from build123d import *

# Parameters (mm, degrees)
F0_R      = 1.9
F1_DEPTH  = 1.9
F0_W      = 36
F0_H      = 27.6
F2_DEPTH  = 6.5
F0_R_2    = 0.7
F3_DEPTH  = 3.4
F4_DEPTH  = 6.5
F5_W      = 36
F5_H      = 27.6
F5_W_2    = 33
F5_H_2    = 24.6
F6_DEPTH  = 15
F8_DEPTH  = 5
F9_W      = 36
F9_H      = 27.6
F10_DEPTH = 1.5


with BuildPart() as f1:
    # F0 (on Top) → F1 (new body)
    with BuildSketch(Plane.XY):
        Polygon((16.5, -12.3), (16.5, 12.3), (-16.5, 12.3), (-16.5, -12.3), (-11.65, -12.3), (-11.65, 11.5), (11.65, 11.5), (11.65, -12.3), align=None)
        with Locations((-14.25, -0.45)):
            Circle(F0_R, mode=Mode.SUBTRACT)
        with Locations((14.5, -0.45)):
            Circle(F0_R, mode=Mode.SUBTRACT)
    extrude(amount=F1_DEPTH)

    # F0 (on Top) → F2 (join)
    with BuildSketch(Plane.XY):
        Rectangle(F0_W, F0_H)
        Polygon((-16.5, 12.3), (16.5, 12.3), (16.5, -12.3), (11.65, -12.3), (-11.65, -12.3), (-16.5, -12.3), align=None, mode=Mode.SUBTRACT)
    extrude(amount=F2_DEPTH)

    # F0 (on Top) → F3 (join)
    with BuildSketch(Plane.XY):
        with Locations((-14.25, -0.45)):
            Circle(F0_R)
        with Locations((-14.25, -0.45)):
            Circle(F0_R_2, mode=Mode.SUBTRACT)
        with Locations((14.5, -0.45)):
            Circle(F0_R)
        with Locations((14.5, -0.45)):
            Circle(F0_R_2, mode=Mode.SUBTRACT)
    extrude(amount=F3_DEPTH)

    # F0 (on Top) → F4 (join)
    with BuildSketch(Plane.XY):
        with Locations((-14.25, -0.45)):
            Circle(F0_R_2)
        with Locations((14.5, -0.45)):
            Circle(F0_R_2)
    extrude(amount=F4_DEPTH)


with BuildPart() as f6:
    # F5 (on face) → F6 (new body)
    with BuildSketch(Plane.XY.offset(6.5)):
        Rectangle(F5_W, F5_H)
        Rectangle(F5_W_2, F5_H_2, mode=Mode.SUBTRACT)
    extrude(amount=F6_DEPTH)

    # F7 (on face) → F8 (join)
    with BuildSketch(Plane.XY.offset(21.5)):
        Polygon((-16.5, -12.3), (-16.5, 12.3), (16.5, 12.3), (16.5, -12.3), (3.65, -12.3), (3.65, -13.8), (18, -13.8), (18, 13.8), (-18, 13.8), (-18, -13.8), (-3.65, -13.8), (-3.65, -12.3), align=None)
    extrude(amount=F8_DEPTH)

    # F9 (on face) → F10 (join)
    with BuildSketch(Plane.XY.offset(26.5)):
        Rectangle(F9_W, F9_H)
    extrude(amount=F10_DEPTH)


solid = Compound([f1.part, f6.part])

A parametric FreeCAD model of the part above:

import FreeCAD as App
import Part
import Sketcher

V = App.Vector


def add_polygon(sketch, points):
    """Adds a closed chain of lines whose ends are joined by coincident constraints."""
    first, n = sketch.GeometryCount, len(points)
    for a, b in zip(points, points[1:] + points[:1]):
        sketch.addGeometry(Part.LineSegment(App.Vector(*a, 0), App.Vector(*b, 0)), False)
    for i in range(n):
        sketch.addConstraint(Sketcher.Constraint("Coincident", first + i, 2, first + (i + 1) % n, 1))

doc = App.newDocument("Part")
body = doc.addObject("PartDesign::Body", "Body")

sketch1 = doc.addObject("Sketcher::SketchObject", "Sketch")
body.addObject(sketch1)
sketch1.AttachmentSupport = (doc.XY_Plane, [""])
sketch1.MapMode = "FlatFace"
add_polygon(sketch1, [(16.5, -12.3), (16.5, 12.3), (-16.5, 12.3), (-16.5, -12.3), (-11.7, -12.3), (-11.7, 11.5), (11.7, 11.5), (11.7, -12.3)])
sketch1.addGeometry(Part.Circle(V(-14.2, -0.5, 0), V(0, 0, 1), 1.9), False)
sketch1.addGeometry(Part.Circle(V(14.5, -0.5, 0), V(0, 0, 1), 1.9), False)
sketch1.addConstraint([
    Sketcher.Constraint("Vertical", 0),
    Sketcher.Constraint("Horizontal", 1),
    Sketcher.Constraint("Vertical", 2),
    Sketcher.Constraint("Horizontal", 3),
    Sketcher.Constraint("Vertical", 4),
    Sketcher.Constraint("Horizontal", 5),
    Sketcher.Constraint("Vertical", 6),
    Sketcher.Constraint("Horizontal", 7),
    Sketcher.Constraint("Equal", 8, 9),
    Sketcher.Constraint("Symmetric", 0, 2, 2, 2, -1, 1),
    Sketcher.Constraint("Symmetric", 3, 2, 6, 2, -2),
    Sketcher.Constraint("Horizontal", 8, 3, 9, 3),
    Sketcher.Constraint("Diameter", 8, 3.8),
    Sketcher.Constraint("DistanceX", 1, 2, 1, 1, 33.0),
    Sketcher.Constraint("DistanceX", 5, 1, 5, 2, 23.3),
    Sketcher.Constraint("DistanceY", 0, 1, 0, 2, 24.6),
    Sketcher.Constraint("DistanceY", 4, 1, 4, 2, 23.8),
    Sketcher.Constraint("DistanceX", 9, 3, 0, 2, 2.0),
    Sketcher.Constraint("DistanceX", 8, 3, 3, 2, 2.6),
    Sketcher.Constraint("DistanceY", 8, 3, -1, 1, 0.45),
])
pad1 = doc.addObject("PartDesign::Pad", "Pad")
body.addObject(pad1)
pad1.Profile = sketch1
pad1.Length = 1.9

sketch2 = doc.addObject("Sketcher::SketchObject", "Sketch001")
body.addObject(sketch2)
sketch2.AttachmentSupport = (doc.XY_Plane, [""])
sketch2.MapMode = "FlatFace"
add_polygon(sketch2, [(-18, 14), (-18, -14), (18, -14), (18, 14)])
add_polygon(sketch2, [(-16, -12), (-16, 12), (16, 12), (16, -12)])
sketch2.addConstraint([
    Sketcher.Constraint("Vertical", 0),
    Sketcher.Constraint("Horizontal", 1),
    Sketcher.Constraint("Vertical", 2),
    Sketcher.Constraint("Horizontal", 3),
    Sketcher.Constraint("Vertical", 4),
    Sketcher.Constraint("Horizontal", 5),
    Sketcher.Constraint("Vertical", 6),
    Sketcher.Constraint("Horizontal", 7),
    Sketcher.Constraint("Symmetric", 0, 2, 2, 2, -1, 1),
    Sketcher.Constraint("Symmetric", 4, 2, 6, 2, -1, 1),
    Sketcher.Constraint("DistanceX", 1, 1, 1, 2, 36.0),
    Sketcher.Constraint("DistanceX", 5, 1, 5, 2, 33.0),
    Sketcher.Constraint("DistanceY", 0, 2, 0, 1, 27.6),
    Sketcher.Constraint("DistanceY", 4, 1, 4, 2, 24.6),
])
pad2 = doc.addObject("PartDesign::Pad", "Pad001")
body.addObject(pad2)
pad2.Profile = sketch2
pad2.Length = 6.5

sketch3 = doc.addObject("Sketcher::SketchObject", "Sketch002")
body.addObject(sketch3)
sketch3.AttachmentSupport = (doc.XY_Plane, [""])
sketch3.MapMode = "FlatFace"
sketch3.addGeometry([
    Part.Circle(V(-14.2, -0.5, 0), V(0, 0, 1), 1.9),
    Part.Circle(V(-14.2, -0.5, 0), V(0, 0, 1), 0.7),
    Part.Circle(V(14.5, -0.5, 0), V(0, 0, 1), 1.9),
    Part.Circle(V(14.5, -0.5, 0), V(0, 0, 1), 0.7),
], False)
sketch3.addConstraint([
    Sketcher.Constraint("Coincident", 1, 3, 0, 3),
    Sketcher.Constraint("Coincident", 3, 3, 2, 3),
    Sketcher.Constraint("Equal", 0, 2),
    Sketcher.Constraint("Equal", 1, 3),
    Sketcher.Constraint("Horizontal", 1, 3, 2, 3),
    Sketcher.Constraint("Diameter", 0, 3.8),
    Sketcher.Constraint("Diameter", 1, 1.4),
    Sketcher.Constraint("DistanceX", -1, 1, 2, 3, 14.5),
    Sketcher.Constraint("DistanceX", 0, 3, -1, 1, 14.25),
    Sketcher.Constraint("DistanceY", 0, 3, -1, 1, 0.45),
])
pad3 = doc.addObject("PartDesign::Pad", "Pad002")
body.addObject(pad3)
pad3.Profile = sketch3
pad3.Length = 3.4

sketch4 = doc.addObject("Sketcher::SketchObject", "Sketch003")
body.addObject(sketch4)
sketch4.AttachmentSupport = (doc.XY_Plane, [""])
sketch4.MapMode = "FlatFace"
sketch4.addGeometry([
    Part.Circle(V(-14.2, -0.5, 0), V(0, 0, 1), 0.7),
    Part.Circle(V(14.5, -0.5, 0), V(0, 0, 1), 0.7),
], False)
sketch4.addConstraint([
    Sketcher.Constraint("Equal", 0, 1),
    Sketcher.Constraint("Horizontal", 0, 3, 1, 3),
    Sketcher.Constraint("Diameter", 0, 1.4),
    Sketcher.Constraint("DistanceX", -1, 1, 1, 3, 14.5),
    Sketcher.Constraint("DistanceX", 0, 3, -1, 1, 14.25),
    Sketcher.Constraint("DistanceY", 0, 3, -1, 1, 0.45),
])
pad4 = doc.addObject("PartDesign::Pad", "Pad003")
body.addObject(pad4)
pad4.Profile = sketch4
pad4.Length = 6.5
body2 = doc.addObject("PartDesign::Body", "Body001")

sketch5 = doc.addObject("Sketcher::SketchObject", "Sketch004")
body2.addObject(sketch5)
sketch5.AttachmentSupport = (doc.getObject("XY_Plane001"), [""])
sketch5.MapMode = "FlatFace"
sketch5.AttachmentOffset = App.Placement(V(0, 0, 6.5), App.Rotation())
add_polygon(sketch5, [(-18, 14), (-18, -14), (18, -14), (18, 14)])
add_polygon(sketch5, [(16, -12), (-16, -12), (-16, 12), (16, 12)])
sketch5.addConstraint([
    Sketcher.Constraint("Vertical", 0),
    Sketcher.Constraint("Horizontal", 1),
    Sketcher.Constraint("Vertical", 2),
    Sketcher.Constraint("Horizontal", 3),
    Sketcher.Constraint("Horizontal", 4),
    Sketcher.Constraint("Vertical", 5),
    Sketcher.Constraint("Horizontal", 6),
    Sketcher.Constraint("Vertical", 7),
    Sketcher.Constraint("Symmetric", 0, 2, 2, 2, -1, 1),
    Sketcher.Constraint("Symmetric", 4, 2, 6, 2, -1, 1),
    Sketcher.Constraint("DistanceX", 1, 1, 1, 2, 36.0),
    Sketcher.Constraint("DistanceX", 4, 2, 4, 1, 33.0),
    Sketcher.Constraint("DistanceY", 0, 2, 0, 1, 27.6),
    Sketcher.Constraint("DistanceY", 5, 1, 5, 2, 24.6),
])
pad5 = doc.addObject("PartDesign::Pad", "Pad004")
body2.addObject(pad5)
pad5.Profile = sketch5
pad5.Length = 15

sketch6 = doc.addObject("Sketcher::SketchObject", "Sketch005")
body2.addObject(sketch6)
sketch6.AttachmentSupport = (doc.getObject("XY_Plane001"), [""])
sketch6.MapMode = "FlatFace"
sketch6.AttachmentOffset = App.Placement(V(0, 0, 21.5), App.Rotation())
add_polygon(sketch6, [(-16.5, -12.3), (-16.5, 12.3), (16.5, 12.3), (16.5, -12.3), (3.6, -12.3), (3.6, -13.8), (18, -13.8), (18, 13.8), (-18, 13.8), (-18, -13.8), (-3.6, -13.8), (-3.6, -12.3)])
sketch6.addConstraint([
    Sketcher.Constraint("Vertical", 0),
    Sketcher.Constraint("Horizontal", 1),
    Sketcher.Constraint("Vertical", 2),
    Sketcher.Constraint("Horizontal", 3),
    Sketcher.Constraint("Vertical", 4),
    Sketcher.Constraint("Horizontal", 5),
    Sketcher.Constraint("Vertical", 6),
    Sketcher.Constraint("Horizontal", 7),
    Sketcher.Constraint("Vertical", 8),
    Sketcher.Constraint("Horizontal", 9),
    Sketcher.Constraint("Vertical", 10),
    Sketcher.Constraint("Horizontal", 11),
    Sketcher.Constraint("Symmetric", 0, 2, 2, 2, -1, 1),
    Sketcher.Constraint("Symmetric", 5, 2, 7, 2, -1, 1),
    Sketcher.Constraint("Symmetric", 4, 2, 9, 2, -2),
    Sketcher.Constraint("Horizontal", 3, 2, 10, 2),
    Sketcher.Constraint("DistanceX", 1, 1, 1, 2, 33.0),
    Sketcher.Constraint("DistanceX", 7, 2, 7, 1, 36.0),
    Sketcher.Constraint("DistanceY", 0, 1, 0, 2, 24.6),
    Sketcher.Constraint("DistanceY", 4, 2, 4, 1, 1.5),
    Sketcher.Constraint("DistanceX", 3, 2, 3, 1, 12.85),
])
pad6 = doc.addObject("PartDesign::Pad", "Pad005")
body2.addObject(pad6)
pad6.Profile = sketch6
pad6.Length = 5

sketch7 = doc.addObject("Sketcher::SketchObject", "Sketch006")
body2.addObject(sketch7)
sketch7.AttachmentSupport = (doc.getObject("XY_Plane001"), [""])
sketch7.MapMode = "FlatFace"
sketch7.AttachmentOffset = App.Placement(V(0, 0, 26.5), App.Rotation())
add_polygon(sketch7, [(-18, 14), (-18, -14), (18, -14), (18, 14)])
sketch7.addConstraint([
    Sketcher.Constraint("Vertical", 0),
    Sketcher.Constraint("Horizontal", 1),
    Sketcher.Constraint("Vertical", 2),
    Sketcher.Constraint("Horizontal", 3),
    Sketcher.Constraint("Symmetric", 0, 2, 2, 2, -1, 1),
    Sketcher.Constraint("DistanceX", 1, 1, 1, 2, 36.0),
    Sketcher.Constraint("DistanceY", 0, 2, 0, 1, 27.6),
])
pad7 = doc.addObject("PartDesign::Pad", "Pad006")
body2.addObject(pad7)
pad7.Profile = sketch7
pad7.Length = 1.5

doc.recompute()
